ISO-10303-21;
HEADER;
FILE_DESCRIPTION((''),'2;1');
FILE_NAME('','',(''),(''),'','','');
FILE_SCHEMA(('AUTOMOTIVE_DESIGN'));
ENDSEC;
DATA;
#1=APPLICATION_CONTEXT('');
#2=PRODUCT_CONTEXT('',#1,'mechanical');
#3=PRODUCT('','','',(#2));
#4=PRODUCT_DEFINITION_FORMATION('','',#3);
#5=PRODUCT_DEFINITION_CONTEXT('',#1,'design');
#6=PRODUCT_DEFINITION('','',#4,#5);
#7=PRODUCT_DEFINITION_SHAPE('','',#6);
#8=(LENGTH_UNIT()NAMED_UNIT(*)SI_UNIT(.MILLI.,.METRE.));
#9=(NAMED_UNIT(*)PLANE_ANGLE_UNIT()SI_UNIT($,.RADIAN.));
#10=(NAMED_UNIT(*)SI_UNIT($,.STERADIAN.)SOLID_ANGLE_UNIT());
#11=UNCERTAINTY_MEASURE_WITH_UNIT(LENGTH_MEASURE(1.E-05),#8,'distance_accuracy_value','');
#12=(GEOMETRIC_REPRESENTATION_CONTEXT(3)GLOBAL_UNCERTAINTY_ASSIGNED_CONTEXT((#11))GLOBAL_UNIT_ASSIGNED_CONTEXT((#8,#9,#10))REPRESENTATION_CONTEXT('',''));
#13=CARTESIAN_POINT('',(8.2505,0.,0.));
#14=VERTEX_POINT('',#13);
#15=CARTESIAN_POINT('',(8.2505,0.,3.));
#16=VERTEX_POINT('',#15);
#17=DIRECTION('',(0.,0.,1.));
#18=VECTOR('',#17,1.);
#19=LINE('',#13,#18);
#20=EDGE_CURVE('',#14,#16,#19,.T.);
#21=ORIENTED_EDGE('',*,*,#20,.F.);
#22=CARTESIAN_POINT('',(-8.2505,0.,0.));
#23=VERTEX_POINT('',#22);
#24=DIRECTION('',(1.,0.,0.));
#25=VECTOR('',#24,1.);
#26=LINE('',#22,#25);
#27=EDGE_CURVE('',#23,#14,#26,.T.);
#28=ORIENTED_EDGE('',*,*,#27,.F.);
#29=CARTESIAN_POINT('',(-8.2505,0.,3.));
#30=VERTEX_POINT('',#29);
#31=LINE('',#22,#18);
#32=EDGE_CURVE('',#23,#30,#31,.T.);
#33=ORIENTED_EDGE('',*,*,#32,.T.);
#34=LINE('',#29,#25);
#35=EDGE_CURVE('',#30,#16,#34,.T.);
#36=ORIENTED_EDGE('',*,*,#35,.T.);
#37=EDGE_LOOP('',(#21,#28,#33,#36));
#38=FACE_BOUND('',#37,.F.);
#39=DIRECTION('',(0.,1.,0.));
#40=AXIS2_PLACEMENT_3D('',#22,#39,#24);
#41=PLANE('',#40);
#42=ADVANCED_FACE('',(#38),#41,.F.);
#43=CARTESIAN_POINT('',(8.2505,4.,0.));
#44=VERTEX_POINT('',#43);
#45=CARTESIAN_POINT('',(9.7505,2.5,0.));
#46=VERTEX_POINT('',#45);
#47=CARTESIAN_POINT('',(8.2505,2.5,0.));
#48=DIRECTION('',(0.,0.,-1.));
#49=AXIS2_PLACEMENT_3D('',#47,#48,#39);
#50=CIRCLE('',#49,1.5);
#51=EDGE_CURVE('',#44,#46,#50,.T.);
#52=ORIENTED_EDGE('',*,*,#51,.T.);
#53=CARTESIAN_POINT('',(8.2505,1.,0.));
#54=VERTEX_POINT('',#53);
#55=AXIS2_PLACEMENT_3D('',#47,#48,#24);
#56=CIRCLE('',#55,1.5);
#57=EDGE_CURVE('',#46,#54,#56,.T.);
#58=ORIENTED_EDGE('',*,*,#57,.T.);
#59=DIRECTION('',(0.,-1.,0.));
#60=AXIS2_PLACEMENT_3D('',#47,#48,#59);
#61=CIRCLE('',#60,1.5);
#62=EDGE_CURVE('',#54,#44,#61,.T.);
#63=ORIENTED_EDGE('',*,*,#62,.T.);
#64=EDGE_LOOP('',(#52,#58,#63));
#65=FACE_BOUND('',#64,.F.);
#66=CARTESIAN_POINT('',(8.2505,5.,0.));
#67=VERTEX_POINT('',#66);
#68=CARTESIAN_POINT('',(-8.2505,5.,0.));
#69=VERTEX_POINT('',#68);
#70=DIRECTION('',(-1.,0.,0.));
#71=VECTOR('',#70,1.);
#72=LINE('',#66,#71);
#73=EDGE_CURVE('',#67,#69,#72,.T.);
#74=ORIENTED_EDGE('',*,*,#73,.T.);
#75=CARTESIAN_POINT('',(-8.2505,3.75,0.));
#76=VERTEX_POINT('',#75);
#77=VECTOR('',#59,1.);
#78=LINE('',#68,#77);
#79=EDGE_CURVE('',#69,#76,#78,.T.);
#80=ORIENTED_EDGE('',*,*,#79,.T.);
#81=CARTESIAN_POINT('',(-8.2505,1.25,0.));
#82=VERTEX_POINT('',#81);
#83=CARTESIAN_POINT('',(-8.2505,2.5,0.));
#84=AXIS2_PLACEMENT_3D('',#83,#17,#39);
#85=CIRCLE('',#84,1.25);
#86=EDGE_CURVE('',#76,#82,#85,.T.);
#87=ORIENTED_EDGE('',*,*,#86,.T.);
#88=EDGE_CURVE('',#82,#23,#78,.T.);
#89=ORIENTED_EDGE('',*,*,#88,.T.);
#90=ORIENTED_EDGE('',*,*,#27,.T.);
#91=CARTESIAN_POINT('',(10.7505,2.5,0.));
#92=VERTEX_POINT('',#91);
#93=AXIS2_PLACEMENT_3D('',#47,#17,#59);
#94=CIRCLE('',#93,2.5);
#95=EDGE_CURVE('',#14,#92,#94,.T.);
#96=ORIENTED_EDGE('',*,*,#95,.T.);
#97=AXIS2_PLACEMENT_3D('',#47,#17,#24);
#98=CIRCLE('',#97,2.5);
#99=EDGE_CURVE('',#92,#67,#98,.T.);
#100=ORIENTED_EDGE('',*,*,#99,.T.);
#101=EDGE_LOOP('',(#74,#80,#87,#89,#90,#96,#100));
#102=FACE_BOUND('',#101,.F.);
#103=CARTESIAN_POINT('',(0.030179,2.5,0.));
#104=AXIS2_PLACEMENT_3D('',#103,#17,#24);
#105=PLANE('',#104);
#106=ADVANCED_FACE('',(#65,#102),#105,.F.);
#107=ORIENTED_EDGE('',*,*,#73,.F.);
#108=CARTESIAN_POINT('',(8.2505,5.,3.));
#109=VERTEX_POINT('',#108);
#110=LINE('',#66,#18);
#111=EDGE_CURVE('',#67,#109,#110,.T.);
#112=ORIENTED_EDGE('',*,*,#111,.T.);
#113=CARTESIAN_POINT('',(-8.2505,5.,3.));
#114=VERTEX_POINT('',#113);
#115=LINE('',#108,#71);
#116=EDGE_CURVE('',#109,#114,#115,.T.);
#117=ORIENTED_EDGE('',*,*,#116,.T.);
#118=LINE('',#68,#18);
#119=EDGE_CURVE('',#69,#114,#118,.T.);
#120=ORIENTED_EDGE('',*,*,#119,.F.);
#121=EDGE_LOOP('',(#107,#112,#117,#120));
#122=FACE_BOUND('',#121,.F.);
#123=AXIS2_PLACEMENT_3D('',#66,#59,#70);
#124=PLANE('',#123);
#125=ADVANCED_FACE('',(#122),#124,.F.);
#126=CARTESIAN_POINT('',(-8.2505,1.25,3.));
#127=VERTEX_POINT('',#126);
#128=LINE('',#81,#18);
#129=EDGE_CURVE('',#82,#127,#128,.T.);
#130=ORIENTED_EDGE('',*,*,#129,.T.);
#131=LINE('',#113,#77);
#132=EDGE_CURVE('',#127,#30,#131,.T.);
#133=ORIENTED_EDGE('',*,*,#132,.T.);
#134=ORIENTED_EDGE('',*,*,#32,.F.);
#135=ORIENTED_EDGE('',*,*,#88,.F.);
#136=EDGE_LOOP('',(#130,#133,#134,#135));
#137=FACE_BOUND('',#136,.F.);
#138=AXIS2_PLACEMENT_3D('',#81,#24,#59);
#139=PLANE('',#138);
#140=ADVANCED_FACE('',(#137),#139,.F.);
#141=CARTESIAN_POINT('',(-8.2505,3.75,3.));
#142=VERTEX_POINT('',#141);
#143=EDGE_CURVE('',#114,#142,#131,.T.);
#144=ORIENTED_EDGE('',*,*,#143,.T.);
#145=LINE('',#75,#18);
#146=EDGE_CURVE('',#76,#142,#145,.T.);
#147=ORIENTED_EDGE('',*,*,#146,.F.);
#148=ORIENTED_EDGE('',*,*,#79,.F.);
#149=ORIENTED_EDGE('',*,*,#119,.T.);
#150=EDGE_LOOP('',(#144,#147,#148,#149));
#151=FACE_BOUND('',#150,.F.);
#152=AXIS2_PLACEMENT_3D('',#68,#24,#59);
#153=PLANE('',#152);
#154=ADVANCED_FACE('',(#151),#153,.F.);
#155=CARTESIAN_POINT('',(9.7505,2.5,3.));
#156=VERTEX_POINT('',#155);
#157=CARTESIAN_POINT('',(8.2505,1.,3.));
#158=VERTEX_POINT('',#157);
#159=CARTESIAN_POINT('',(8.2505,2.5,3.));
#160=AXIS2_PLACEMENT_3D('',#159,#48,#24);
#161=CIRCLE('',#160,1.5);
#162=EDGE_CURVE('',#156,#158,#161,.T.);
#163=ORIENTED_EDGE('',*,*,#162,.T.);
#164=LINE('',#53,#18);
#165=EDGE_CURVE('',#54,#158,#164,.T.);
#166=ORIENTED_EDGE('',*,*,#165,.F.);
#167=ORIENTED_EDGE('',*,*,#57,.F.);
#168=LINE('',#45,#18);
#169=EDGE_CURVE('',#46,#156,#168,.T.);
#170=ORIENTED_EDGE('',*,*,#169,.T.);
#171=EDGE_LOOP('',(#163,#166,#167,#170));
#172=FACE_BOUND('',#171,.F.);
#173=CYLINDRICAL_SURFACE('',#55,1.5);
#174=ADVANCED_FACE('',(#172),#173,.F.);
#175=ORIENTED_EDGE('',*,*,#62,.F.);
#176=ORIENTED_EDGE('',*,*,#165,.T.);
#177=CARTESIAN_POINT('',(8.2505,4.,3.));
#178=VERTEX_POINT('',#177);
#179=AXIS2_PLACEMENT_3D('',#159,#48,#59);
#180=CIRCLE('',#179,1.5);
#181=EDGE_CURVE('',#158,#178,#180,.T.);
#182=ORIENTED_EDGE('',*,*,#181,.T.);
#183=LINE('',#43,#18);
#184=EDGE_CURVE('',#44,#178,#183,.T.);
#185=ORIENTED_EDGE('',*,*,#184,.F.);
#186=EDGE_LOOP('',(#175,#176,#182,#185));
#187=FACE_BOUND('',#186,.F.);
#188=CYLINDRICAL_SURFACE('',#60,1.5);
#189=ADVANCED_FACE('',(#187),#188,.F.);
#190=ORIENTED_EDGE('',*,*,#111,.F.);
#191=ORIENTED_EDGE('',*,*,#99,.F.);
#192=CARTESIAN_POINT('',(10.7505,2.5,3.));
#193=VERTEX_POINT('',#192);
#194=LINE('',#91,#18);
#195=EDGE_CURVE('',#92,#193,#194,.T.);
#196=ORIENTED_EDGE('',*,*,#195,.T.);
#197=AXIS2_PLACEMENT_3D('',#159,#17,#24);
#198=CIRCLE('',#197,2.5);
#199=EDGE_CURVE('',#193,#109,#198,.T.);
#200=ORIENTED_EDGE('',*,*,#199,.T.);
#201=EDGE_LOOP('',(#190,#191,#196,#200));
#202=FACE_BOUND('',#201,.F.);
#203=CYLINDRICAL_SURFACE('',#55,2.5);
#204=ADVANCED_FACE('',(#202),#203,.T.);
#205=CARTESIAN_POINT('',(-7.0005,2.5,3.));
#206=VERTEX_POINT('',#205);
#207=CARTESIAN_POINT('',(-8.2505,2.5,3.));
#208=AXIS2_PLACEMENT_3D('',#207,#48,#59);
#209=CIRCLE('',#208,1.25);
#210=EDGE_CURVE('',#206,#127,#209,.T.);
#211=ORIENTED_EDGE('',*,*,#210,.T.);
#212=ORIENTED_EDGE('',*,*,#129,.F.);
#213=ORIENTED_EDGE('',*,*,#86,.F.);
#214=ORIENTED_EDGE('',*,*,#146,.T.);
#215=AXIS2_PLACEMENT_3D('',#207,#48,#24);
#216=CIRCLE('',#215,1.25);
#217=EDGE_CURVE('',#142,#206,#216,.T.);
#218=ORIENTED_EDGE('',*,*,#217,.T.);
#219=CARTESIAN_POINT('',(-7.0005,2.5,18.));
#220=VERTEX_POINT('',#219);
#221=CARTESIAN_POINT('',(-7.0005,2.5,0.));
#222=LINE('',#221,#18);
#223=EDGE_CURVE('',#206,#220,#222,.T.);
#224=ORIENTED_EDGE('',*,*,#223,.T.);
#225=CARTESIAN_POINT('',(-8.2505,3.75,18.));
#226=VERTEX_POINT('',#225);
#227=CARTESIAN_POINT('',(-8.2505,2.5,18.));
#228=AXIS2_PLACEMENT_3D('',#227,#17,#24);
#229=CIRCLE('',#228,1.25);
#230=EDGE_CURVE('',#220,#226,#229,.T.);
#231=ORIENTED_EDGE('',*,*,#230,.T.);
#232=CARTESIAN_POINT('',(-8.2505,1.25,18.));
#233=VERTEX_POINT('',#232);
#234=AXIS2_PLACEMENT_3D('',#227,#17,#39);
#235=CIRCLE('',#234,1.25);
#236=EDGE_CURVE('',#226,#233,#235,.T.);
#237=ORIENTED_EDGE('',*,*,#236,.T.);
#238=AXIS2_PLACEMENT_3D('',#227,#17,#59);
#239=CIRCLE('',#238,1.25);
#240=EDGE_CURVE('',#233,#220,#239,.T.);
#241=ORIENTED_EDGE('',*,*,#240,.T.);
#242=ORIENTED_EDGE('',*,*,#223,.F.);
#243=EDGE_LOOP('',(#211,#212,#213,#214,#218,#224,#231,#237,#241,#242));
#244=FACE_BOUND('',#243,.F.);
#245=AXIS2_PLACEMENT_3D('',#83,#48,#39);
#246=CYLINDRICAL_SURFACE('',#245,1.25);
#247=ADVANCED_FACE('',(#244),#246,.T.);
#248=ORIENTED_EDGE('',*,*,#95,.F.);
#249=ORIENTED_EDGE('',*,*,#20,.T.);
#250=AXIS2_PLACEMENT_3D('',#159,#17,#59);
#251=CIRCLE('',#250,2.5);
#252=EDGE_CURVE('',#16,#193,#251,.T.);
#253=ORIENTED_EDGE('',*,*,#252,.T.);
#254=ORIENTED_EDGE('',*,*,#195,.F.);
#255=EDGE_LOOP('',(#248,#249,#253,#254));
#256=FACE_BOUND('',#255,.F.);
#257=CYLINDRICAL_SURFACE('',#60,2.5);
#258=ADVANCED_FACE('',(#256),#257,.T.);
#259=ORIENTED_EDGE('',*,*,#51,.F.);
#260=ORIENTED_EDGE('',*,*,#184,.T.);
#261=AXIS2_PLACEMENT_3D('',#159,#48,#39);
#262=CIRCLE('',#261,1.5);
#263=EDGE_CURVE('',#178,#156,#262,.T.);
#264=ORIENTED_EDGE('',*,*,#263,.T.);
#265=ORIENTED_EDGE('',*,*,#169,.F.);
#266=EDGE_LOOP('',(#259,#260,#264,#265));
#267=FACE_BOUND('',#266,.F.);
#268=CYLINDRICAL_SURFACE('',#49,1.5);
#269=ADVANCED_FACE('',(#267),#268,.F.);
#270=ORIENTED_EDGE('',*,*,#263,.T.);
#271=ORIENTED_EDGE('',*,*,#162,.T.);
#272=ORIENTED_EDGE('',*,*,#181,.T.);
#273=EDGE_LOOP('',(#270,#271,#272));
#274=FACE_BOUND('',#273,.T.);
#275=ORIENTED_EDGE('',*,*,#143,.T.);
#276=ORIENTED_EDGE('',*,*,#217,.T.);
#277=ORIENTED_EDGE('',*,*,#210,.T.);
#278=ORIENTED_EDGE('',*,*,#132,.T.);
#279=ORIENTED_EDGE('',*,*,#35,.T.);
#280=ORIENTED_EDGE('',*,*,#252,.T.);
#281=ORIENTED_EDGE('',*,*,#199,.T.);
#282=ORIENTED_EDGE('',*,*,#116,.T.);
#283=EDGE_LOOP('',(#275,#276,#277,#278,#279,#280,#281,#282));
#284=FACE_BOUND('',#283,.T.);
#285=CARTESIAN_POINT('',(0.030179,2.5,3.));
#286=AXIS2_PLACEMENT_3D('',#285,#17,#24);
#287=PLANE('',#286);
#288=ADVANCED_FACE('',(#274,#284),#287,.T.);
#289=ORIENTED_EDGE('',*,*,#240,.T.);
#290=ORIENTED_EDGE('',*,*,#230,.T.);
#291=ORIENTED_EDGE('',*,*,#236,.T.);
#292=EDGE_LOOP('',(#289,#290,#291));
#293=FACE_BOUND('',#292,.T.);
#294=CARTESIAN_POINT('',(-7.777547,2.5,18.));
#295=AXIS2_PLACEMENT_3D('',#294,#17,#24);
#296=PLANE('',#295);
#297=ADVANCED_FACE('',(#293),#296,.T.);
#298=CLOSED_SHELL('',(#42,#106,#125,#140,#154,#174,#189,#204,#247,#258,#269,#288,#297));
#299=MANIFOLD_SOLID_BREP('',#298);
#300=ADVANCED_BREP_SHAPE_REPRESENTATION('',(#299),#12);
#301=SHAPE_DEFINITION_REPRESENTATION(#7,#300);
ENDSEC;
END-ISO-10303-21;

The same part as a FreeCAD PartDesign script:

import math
import FreeCAD as App
import Part
import Sketcher

V = App.Vector

doc = App.newDocument("Part")
body = doc.addObject("PartDesign::Body", "Body")

# Sketch on XY plane
sketch1 = body.newObject("Sketcher::SketchObject", "Sketch")
sketch1.AttachmentSupport = (doc.getObject("XY_Plane"), [""])
sketch1.MapMode = "FlatFace"
sketch1.addGeometry([
    Part.LineSegment(V(8.3, 5, 0), V(-8.3, 5, 0)),  # 0
    Part.LineSegment(V(-8.3, 5, 0), V(-8.3, 3.8, 0)),  # 1
    Part.ArcOfCircle(Part.Circle(V(-8.3, 2.5, 0), V(0, 0, 1), 1.2), math.radians(90), math.radians(270)),  # 2
    Part.LineSegment(V(-8.3, 1.2, 0), V(-8.3, 0, 0)),  # 3
    Part.LineSegment(V(-8.3, 0, 0), V(8.3, 0, 0)),  # 4
    Part.ArcOfCircle(Part.Circle(V(8.3, 2.5, 0), V(0, 0, 1), 2.5), math.radians(-90), math.radians(0)),  # 5
    Part.ArcOfCircle(Part.Circle(V(8.3, 2.5, 0), V(0, 0, 1), 2.5), math.radians(0), math.radians(90)),  # 6
    Part.ArcOfCircle(Part.Circle(V(8.3, 2.5, 0), V(0, 0, 1), 1.5), math.radians(90), math.radians(270)),  # 7
    Part.ArcOfCircle(Part.Circle(V(8.3, 2.5, 0), V(0, 0, 1), 1.5), math.radians(0), math.radians(90)),  # 8
    Part.ArcOfCircle(Part.Circle(V(8.3, 2.5, 0), V(0, 0, 1), 1.5), math.radians(-90), math.radians(0)),  # 9
], False)
sketch1.addConstraint([
    Sketcher.Constraint("Coincident", 0, 2, 1, 1),
    Sketcher.Constraint("Coincident", 1, 2, 2, 1),
    Sketcher.Constraint("Coincident", 2, 2, 3, 1),
    Sketcher.Constraint("Coincident", 3, 2, 4, 1),
    Sketcher.Constraint("Tangent", 4, 2, 5, 1),
    Sketcher.Constraint("Tangent", 5, 2, 6, 1),
    Sketcher.Constraint("Tangent", 6, 2, 0, 1),
    Sketcher.Constraint("Tangent", 7, 1, 8, 2),
    Sketcher.Constraint("Tangent", 8, 1, 9, 2),
    Sketcher.Constraint("Tangent", 9, 1, 7, 2),
    Sketcher.Constraint("Horizontal", 0),
    Sketcher.Constraint("Vertical", 1),
    Sketcher.Constraint("Vertical", 3),
    Sketcher.Constraint("Horizontal", 4),
    Sketcher.Constraint("Coincident", 7, 3, 5, 3),
    Sketcher.Constraint("Equal", 5, 6),
    Sketcher.Constraint("Symmetric", 3, 2, 4, 2, -1, 1),
    Sketcher.Constraint("Symmetric", 2, 3, 5, 3, -2),
    Sketcher.Constraint("Horizontal", 9, 3, 5, 2),
    Sketcher.Constraint("Horizontal", 5, 2, 8, 1),
    Sketcher.Constraint("Vertical", 2, 3, 0, 2),
    Sketcher.Constraint("Vertical", 6, 2, 7, 1),
    Sketcher.Constraint("Vertical", 7, 1, 9, 1),
    Sketcher.Constraint("Radius", 5, 2.5),
    Sketcher.Constraint("Radius", 7, 1.5),
    Sketcher.Constraint("Radius", 2, 1.25),
    Sketcher.Constraint("DistanceX", 0, 2, 0, 1, 16.501),
])
pad1 = body.newObject("PartDesign::Pad", "Pad")
pad1.Profile = sketch1
pad1.Length = 3

# Sketch on XY plane
sketch2 = body.newObject("Sketcher::SketchObject", "Sketch001")
sketch2.AttachmentSupport = (doc.getObject("XY_Plane"), [""])
sketch2.MapMode = "FlatFace"
sketch2.addGeometry([
    Part.ArcOfCircle(Part.Circle(V(-8.3, 2.5, 0), V(0, 0, 1), 1.2), math.radians(0), math.radians(90)),
    Part.ArcOfCircle(Part.Circle(V(-8.3, 2.5, 0), V(0, 0, 1), 1.2), math.radians(90), math.radians(270)),
    Part.ArcOfCircle(Part.Circle(V(-8.3, 2.5, 0), V(0, 0, 1), 1.2), math.radians(-90), math.radians(0)),
], False)
sketch2.addConstraint([
    Sketcher.Constraint("Tangent", 0, 2, 1, 1),
    Sketcher.Constraint("Tangent", 1, 2, 2, 1),
    Sketcher.Constraint("Tangent", 2, 2, 0, 1),
    Sketcher.Constraint("Horizontal", 1, 3, 2, 2),
    Sketcher.Constraint("Vertical", 2, 3, 0, 2),
    Sketcher.Constraint("Vertical", 0, 2, 1, 2),
    Sketcher.Constraint("Radius", 0, 1.25),
    Sketcher.Constraint("DistanceY", -1, 1, 0, 3, 2.5),
    Sketcher.Constraint("DistanceX", 0, 3, -1, 1, 8.2505),
])
pad2 = body.newObject("PartDesign::Pad", "Pad001")
pad2.Profile = sketch2
pad2.Length = 18

doc.recompute()
